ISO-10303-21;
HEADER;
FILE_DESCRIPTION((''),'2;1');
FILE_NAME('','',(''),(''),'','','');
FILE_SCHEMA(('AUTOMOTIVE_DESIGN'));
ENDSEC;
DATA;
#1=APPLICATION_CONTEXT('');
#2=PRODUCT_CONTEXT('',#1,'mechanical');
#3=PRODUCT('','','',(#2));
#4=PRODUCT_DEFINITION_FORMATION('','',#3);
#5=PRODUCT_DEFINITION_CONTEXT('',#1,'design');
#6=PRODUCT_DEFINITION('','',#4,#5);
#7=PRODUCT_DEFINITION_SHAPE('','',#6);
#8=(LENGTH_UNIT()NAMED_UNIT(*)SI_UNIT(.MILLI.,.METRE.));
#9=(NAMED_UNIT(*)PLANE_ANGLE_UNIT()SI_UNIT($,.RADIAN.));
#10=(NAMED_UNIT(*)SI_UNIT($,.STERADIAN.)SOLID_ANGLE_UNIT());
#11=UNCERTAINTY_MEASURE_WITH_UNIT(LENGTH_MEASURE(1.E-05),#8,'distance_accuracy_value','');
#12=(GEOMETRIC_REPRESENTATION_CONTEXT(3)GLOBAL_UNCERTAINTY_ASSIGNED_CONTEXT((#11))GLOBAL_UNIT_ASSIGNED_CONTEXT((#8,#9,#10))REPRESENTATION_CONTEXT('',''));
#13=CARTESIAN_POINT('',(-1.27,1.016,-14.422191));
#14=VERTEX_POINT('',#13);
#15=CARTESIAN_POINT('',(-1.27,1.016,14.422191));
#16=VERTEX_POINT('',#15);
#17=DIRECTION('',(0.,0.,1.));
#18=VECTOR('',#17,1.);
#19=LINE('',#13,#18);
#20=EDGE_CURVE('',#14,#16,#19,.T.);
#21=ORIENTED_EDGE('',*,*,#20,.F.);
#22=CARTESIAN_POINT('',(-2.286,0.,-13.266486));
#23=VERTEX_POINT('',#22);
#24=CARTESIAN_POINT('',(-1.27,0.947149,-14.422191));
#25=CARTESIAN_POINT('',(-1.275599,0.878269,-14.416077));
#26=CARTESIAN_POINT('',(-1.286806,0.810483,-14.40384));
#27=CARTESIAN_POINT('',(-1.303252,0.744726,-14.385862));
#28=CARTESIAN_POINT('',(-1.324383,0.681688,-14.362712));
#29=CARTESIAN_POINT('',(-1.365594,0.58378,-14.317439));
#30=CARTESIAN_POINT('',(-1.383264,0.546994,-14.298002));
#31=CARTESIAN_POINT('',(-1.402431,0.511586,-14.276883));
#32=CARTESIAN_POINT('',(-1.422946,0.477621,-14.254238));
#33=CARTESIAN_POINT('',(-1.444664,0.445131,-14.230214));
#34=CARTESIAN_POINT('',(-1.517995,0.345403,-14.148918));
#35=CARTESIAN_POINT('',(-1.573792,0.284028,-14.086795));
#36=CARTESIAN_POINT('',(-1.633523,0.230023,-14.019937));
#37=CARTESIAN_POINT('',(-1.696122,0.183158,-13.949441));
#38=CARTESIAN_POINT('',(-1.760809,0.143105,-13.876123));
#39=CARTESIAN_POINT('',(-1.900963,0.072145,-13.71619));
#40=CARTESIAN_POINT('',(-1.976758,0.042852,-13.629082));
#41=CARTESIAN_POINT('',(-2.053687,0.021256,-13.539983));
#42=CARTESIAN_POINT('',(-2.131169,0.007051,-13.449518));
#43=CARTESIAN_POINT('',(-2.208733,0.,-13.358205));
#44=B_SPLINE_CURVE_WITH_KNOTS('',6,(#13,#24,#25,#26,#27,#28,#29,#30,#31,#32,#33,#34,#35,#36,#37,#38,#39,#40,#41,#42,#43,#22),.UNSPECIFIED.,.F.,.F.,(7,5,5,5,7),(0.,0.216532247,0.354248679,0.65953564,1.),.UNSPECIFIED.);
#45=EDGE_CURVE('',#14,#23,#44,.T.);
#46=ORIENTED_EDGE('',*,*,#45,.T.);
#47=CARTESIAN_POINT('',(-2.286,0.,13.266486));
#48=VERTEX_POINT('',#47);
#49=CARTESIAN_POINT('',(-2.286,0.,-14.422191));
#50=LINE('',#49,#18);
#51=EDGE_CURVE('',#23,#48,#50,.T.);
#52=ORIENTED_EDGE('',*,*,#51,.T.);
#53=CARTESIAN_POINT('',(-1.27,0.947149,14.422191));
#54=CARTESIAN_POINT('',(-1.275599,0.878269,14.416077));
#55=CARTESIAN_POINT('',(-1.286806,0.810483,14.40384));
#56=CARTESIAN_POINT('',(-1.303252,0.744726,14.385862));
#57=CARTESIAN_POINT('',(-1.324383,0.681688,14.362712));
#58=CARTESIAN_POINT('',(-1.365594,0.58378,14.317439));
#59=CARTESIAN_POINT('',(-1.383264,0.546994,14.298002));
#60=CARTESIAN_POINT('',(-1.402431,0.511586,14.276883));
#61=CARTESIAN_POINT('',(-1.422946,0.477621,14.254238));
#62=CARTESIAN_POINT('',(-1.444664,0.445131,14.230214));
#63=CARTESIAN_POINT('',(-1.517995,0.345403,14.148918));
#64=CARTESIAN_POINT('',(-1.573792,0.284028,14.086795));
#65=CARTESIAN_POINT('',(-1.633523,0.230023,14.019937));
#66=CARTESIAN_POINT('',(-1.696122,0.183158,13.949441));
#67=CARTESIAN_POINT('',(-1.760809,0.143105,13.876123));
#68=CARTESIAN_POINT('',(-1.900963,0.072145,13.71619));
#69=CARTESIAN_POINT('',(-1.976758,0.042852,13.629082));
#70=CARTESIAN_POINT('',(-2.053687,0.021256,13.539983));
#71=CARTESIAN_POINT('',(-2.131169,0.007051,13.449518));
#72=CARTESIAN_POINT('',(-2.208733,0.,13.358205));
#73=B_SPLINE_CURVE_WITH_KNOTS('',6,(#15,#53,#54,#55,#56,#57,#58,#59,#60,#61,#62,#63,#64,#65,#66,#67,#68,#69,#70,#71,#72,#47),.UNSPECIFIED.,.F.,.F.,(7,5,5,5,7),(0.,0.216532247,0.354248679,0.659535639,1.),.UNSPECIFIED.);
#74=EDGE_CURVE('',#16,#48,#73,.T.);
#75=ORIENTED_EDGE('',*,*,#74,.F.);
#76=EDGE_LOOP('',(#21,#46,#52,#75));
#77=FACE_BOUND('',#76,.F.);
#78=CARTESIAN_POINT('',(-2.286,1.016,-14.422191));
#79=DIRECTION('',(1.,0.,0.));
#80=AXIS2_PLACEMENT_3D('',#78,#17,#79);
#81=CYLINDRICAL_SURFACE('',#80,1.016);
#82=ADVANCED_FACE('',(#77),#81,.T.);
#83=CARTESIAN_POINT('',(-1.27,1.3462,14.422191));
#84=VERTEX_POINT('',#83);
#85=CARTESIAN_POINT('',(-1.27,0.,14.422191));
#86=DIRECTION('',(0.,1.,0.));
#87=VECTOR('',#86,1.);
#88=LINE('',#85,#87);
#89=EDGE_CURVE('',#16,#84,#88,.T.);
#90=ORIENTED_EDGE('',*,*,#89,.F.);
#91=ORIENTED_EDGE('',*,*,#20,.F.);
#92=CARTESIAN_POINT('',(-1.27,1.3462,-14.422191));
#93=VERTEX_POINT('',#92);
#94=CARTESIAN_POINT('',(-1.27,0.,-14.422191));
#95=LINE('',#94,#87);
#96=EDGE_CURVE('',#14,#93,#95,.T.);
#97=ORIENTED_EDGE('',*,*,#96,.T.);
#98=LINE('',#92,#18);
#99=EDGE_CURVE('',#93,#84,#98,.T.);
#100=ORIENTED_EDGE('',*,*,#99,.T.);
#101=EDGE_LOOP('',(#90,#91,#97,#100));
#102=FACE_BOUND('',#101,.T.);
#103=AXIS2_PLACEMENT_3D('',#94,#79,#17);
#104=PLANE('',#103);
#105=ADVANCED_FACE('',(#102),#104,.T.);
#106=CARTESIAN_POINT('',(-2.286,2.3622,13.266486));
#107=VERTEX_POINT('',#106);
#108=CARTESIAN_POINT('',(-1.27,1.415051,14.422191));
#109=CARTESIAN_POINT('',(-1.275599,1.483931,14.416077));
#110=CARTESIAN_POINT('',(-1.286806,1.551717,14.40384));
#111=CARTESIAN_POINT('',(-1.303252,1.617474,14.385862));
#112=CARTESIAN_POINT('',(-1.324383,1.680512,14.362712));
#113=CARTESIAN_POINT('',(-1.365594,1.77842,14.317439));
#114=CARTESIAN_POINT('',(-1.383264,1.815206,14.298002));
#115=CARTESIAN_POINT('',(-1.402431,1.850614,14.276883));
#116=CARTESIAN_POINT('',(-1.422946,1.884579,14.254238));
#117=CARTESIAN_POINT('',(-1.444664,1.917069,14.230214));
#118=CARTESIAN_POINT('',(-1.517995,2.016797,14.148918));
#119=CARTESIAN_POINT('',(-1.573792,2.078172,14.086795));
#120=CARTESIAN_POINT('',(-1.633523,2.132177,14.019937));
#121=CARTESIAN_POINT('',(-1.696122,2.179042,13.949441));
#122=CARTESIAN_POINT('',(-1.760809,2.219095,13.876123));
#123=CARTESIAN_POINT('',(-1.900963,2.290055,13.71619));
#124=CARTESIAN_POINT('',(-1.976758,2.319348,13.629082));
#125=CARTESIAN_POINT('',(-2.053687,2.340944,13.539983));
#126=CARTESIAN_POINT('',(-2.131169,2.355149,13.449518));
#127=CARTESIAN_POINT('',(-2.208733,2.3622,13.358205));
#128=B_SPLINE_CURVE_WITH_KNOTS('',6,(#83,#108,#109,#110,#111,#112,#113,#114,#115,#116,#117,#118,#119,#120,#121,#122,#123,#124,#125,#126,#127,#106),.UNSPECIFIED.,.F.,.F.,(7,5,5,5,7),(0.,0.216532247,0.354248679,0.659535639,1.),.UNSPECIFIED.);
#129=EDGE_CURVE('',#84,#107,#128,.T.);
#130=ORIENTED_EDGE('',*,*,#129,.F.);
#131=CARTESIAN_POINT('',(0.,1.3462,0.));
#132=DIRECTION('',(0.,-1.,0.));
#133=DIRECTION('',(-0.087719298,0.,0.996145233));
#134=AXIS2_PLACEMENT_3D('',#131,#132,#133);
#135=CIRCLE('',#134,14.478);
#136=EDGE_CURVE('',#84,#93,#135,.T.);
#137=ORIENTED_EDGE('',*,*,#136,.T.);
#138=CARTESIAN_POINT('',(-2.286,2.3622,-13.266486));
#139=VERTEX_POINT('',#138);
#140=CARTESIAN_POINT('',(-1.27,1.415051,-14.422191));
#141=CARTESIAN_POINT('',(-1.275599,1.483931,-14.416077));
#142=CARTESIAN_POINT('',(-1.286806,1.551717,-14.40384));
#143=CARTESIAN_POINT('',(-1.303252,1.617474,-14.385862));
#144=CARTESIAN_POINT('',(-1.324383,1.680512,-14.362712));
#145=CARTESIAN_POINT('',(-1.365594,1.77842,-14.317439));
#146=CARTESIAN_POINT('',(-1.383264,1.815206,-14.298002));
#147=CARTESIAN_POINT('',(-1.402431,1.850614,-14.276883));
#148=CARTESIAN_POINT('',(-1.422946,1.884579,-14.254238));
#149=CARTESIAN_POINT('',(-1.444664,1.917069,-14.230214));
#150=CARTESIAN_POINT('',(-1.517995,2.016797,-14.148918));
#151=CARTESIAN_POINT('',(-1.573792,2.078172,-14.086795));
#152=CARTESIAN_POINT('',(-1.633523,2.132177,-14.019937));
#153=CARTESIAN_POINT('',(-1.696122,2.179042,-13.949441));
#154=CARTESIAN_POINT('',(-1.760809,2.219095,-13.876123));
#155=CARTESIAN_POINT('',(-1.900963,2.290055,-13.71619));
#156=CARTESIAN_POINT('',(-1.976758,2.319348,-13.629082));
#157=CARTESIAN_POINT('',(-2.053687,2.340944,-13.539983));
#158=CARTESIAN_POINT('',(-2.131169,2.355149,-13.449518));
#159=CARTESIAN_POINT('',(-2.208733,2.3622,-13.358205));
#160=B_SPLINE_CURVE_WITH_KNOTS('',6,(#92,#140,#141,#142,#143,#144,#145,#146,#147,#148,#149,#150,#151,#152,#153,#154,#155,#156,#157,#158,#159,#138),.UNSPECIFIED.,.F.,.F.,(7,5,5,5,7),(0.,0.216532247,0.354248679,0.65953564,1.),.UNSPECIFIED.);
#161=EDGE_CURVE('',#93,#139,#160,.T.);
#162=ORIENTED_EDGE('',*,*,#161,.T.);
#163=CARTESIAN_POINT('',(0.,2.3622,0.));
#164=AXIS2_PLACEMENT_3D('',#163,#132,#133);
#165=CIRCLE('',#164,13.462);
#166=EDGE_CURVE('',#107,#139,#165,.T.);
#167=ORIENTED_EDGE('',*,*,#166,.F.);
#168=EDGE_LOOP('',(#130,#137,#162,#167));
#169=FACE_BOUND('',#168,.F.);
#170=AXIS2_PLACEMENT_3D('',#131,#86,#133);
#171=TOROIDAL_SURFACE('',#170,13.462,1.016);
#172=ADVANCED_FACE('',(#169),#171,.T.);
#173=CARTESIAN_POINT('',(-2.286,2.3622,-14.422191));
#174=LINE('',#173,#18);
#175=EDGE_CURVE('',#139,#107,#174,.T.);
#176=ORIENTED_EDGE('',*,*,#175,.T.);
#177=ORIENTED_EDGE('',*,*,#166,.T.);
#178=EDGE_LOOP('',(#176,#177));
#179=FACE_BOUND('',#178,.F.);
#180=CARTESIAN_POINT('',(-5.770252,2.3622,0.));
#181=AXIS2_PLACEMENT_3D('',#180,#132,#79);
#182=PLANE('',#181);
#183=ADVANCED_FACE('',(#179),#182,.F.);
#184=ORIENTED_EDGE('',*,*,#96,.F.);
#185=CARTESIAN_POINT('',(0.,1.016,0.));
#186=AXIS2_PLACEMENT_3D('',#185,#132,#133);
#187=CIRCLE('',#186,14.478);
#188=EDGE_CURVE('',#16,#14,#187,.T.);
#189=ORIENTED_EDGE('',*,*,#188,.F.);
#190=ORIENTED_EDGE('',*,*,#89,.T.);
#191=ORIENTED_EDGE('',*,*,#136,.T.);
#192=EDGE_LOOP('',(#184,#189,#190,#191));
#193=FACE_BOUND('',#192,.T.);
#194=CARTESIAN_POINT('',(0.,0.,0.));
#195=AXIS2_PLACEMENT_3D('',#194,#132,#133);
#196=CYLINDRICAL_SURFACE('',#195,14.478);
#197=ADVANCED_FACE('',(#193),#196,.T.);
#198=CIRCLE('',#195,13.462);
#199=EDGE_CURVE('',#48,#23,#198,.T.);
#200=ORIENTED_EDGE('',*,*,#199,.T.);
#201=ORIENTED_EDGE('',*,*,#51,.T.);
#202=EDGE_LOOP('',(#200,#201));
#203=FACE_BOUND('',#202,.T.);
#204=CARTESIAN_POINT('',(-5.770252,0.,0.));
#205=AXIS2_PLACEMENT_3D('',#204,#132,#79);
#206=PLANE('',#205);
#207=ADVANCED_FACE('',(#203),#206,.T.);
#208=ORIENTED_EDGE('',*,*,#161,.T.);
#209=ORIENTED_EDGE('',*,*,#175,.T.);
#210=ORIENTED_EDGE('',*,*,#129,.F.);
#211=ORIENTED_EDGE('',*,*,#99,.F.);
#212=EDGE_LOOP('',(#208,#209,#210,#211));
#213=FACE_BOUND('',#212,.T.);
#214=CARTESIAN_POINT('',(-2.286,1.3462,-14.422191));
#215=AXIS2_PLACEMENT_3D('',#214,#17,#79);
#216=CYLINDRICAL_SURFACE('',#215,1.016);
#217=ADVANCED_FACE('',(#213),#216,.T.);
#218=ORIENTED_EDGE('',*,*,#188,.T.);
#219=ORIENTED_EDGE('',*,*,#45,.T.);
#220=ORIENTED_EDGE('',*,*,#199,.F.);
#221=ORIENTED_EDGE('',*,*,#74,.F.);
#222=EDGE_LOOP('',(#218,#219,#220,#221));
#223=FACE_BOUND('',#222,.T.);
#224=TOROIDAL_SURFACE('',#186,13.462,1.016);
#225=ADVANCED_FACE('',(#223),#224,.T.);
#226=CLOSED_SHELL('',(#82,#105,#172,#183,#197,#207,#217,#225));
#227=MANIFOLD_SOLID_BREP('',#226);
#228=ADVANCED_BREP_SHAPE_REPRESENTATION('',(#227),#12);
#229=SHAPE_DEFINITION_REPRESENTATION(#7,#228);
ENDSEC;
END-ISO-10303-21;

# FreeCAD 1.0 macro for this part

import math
import FreeCAD as App
import Part
import Sketcher
Q = App.Units.Quantity


def edges_at(feature, points):
    """Names of the edges that pass closest to the given points."""
    edges = feature.Shape.Edges
    near = lambda p: min(range(len(edges)), key=lambda i: edges[i].distToShape(Part.Vertex(*p))[0])
    return sorted({f"Edge{near(p) + 1}" for p in points})

doc = App.newDocument("Part")
body = doc.addObject("PartDesign::Body", "Body")

sketch1 = body.newObject("Sketcher::SketchObject", "Sketch")
sketch1.AttachmentSupport = (doc.getObject("XZ_Plane"), [""])
sketch1.MapMode = "FlatFace"
sketch1.addGeometry(Part.LineSegment(App.Vector(-1.27, -14.422191, 0), App.Vector(-1.27, 14.422191, 0)), False)
sketch1.addGeometry(Part.ArcOfCircle(Part.Circle(App.Vector(0, 0, 0), App.Vector(0, 0, 1), 14.478), math.radians(95.032413), math.radians(264.967587)), False)
sketch1.addConstraint(Sketcher.Constraint("Coincident", 0, 1, 1, 2))
sketch1.addConstraint(Sketcher.Constraint("Coincident", 1, 1, 0, 2))
sketch1.addConstraint(Sketcher.Constraint("Vertical", 0))
sketch1.addConstraint(Sketcher.Constraint("Coincident", 1, 3, -1, 1))
sketch1.addConstraint(Sketcher.Constraint("Radius", 1, Q("0.57 in")))
sketch1.addConstraint(Sketcher.Constraint("DistanceX", 0, 1, -1, 1, Q("0.05 in")))
pad1 = body.newObject("PartDesign::Pad", "Pad")
pad1.Profile = sketch1
pad1.Length = Q("0.093 in")
pad1.Reversed = True
doc.recompute()

fillet = body.newObject("PartDesign::Fillet", "Fillet")
fillet.Base = (pad1, edges_at(pad1, [
    (-14.478, 0, 0),
    (-1.27, 0, 0),
    (-14.478, 2.362, 0),
    (-1.27, 2.362, 0),
]))
fillet.Radius = Q("0.04 in")

doc.recompute()
